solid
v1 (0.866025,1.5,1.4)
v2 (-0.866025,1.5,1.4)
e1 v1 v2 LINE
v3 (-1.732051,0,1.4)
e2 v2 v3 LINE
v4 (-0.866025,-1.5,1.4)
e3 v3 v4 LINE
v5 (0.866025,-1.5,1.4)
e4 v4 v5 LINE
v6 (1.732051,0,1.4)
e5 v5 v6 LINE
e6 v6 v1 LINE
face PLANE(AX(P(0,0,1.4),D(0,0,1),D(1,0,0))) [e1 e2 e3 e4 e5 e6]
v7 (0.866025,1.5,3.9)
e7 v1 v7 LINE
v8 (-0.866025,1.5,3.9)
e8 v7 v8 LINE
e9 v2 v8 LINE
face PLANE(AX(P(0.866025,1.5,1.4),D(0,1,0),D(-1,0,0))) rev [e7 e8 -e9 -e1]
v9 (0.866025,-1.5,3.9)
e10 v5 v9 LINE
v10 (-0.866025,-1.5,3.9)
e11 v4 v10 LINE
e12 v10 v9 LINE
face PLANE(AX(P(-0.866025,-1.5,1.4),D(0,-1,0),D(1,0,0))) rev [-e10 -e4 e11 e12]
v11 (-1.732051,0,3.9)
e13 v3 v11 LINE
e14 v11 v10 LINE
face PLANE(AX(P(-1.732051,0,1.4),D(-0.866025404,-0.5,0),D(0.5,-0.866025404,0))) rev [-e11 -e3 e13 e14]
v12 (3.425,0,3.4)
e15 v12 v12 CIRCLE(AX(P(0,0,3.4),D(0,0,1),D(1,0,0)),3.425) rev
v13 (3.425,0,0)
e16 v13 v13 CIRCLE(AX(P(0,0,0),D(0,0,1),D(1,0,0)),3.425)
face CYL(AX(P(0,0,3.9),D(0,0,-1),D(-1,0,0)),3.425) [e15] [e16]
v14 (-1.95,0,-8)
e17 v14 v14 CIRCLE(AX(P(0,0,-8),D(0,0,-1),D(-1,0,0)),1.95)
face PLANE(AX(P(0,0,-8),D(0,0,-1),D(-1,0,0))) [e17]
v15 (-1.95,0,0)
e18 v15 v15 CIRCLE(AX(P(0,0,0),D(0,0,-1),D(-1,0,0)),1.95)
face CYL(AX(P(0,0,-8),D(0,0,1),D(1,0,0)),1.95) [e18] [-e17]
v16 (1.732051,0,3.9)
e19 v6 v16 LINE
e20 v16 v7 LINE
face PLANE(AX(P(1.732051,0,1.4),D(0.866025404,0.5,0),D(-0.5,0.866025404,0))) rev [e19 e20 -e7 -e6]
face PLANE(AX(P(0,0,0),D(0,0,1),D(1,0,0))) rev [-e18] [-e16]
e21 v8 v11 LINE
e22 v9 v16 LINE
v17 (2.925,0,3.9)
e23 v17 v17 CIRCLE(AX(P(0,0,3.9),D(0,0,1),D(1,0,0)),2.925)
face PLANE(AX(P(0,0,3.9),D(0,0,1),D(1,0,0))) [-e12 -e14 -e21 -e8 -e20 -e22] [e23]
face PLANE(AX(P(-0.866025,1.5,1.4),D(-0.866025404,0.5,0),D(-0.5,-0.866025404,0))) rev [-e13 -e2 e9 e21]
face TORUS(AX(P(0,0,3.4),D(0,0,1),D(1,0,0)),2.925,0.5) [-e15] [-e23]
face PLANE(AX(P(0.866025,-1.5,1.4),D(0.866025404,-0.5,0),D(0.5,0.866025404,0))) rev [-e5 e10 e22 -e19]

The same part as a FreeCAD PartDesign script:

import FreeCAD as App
import Part
import Sketcher
Q = App.Units.Quantity


def edges_at(feature, points):
    """Names of the edges that pass closest to the given points."""
    edges = feature.Shape.Edges
    near = lambda p: min(range(len(edges)), key=lambda i: edges[i].distToShape(Part.Vertex(*p))[0])
    return sorted({f"Edge{near(p) + 1}" for p in points})


def add_polygon(sketch, points):
    """Adds a closed chain of lines whose ends are joined by coincident constraints."""
    first, n = sketch.GeometryCount, len(points)
    for a, b in zip(points, points[1:] + points[:1]):
        sketch.addGeometry(Part.LineSegment(App.Vector(*a, 0), App.Vector(*b, 0)), False)
    for i in range(n):
        sketch.addConstraint(Sketcher.Constraint("Coincident", first + i, 2, first + (i + 1) % n, 1))

doc = App.newDocument("Part")
body = doc.addObject("PartDesign::Body", "Body")

# Sketch on XY plane
sketch1 = body.newObject("Sketcher::SketchObject", "Sketch")
sketch1.AttachmentSupport = (doc.getObject("XY_Plane"), [""])
sketch1.MapMode = "FlatFace"
sketch1.addGeometry(Part.Circle(App.Vector(0, 0, 0), App.Vector(0, 0, 1), 3.4), False)
sketch1.addConstraint([
    Sketcher.Constraint("Coincident", 0, 3, -1, 1),
    Sketcher.Constraint("Diameter", 0, Q("6.85 mm")),
])
pad1 = body.newObject("PartDesign::Pad", "Pad")
pad1.Profile = sketch1
pad1.Length = 3.9

# Sketch on XY plane
sketch2 = body.newObject("Sketcher::SketchObject", "Sketch001")
sketch2.AttachmentSupport = (doc.getObject("XY_Plane"), [""])
sketch2.MapMode = "FlatFace"
sketch2.addGeometry(Part.Circle(App.Vector(0, 0, 0), App.Vector(0, 0, 1), 1.9), False)
sketch2.addConstraint([
    Sketcher.Constraint("Coincident", 0, 3, -1, 1),
    Sketcher.Constraint("Diameter", 0, Q("3.9 mm")),
])
pad2 = body.newObject("PartDesign::Pad", "Pad001")
pad2.Profile = sketch2
pad2.Length = 8
pad2.Reversed = True

# Sketch on XY plane
sketch3 = body.newObject("Sketcher::SketchObject", "Sketch002")
sketch3.AttachmentSupport = (doc.getObject("XY_Plane"), [""])
sketch3.MapMode = "FlatFace"
sketch3.AttachmentOffset = App.Placement(App.Vector(0, 0, 3.9), App.Rotation())
add_polygon(sketch3, [(1.7, 0), (0.9, 1.5), (-0.9, 1.5), (-1.7, 0), (-0.9, -1.5), (0.9, -1.5)])  # lines 0-5
sketch3.addConstraint([
    Sketcher.Constraint("Horizontal", 1),
    Sketcher.Constraint("Horizontal", 4),
    Sketcher.Constraint("Symmetric", 0, 2, 3, 2, -1, 1),
    Sketcher.Constraint("Symmetric", 2, 2, 5, 2, -1, 1),
    Sketcher.Constraint("PointOnObject", 2, 2, -1),
    Sketcher.Constraint("Parallel", 2, 5),
    Sketcher.Constraint("Vertical", 1, 2, 3, 2),
    Sketcher.Constraint("Angle", 0, Q("120 deg")),
    Sketcher.Constraint("DistanceY", 3, 2, 1, 2, Q("3 mm")),
    Sketcher.Constraint("DistanceX", 1, 2, 1, 1, Q("1.732051 mm")),
])
pocket1 = body.newObject("PartDesign::Pocket", "Pocket")
pocket1.Profile = sketch3
pocket1.Length = 2.5
doc.recompute()

fillet = body.newObject("PartDesign::Fillet", "Fillet")
fillet.Base = (pocket1, edges_at(pocket1, [(-3.425, 0, 3.9)]))
fillet.Radius = 0.5

doc.recompute()
